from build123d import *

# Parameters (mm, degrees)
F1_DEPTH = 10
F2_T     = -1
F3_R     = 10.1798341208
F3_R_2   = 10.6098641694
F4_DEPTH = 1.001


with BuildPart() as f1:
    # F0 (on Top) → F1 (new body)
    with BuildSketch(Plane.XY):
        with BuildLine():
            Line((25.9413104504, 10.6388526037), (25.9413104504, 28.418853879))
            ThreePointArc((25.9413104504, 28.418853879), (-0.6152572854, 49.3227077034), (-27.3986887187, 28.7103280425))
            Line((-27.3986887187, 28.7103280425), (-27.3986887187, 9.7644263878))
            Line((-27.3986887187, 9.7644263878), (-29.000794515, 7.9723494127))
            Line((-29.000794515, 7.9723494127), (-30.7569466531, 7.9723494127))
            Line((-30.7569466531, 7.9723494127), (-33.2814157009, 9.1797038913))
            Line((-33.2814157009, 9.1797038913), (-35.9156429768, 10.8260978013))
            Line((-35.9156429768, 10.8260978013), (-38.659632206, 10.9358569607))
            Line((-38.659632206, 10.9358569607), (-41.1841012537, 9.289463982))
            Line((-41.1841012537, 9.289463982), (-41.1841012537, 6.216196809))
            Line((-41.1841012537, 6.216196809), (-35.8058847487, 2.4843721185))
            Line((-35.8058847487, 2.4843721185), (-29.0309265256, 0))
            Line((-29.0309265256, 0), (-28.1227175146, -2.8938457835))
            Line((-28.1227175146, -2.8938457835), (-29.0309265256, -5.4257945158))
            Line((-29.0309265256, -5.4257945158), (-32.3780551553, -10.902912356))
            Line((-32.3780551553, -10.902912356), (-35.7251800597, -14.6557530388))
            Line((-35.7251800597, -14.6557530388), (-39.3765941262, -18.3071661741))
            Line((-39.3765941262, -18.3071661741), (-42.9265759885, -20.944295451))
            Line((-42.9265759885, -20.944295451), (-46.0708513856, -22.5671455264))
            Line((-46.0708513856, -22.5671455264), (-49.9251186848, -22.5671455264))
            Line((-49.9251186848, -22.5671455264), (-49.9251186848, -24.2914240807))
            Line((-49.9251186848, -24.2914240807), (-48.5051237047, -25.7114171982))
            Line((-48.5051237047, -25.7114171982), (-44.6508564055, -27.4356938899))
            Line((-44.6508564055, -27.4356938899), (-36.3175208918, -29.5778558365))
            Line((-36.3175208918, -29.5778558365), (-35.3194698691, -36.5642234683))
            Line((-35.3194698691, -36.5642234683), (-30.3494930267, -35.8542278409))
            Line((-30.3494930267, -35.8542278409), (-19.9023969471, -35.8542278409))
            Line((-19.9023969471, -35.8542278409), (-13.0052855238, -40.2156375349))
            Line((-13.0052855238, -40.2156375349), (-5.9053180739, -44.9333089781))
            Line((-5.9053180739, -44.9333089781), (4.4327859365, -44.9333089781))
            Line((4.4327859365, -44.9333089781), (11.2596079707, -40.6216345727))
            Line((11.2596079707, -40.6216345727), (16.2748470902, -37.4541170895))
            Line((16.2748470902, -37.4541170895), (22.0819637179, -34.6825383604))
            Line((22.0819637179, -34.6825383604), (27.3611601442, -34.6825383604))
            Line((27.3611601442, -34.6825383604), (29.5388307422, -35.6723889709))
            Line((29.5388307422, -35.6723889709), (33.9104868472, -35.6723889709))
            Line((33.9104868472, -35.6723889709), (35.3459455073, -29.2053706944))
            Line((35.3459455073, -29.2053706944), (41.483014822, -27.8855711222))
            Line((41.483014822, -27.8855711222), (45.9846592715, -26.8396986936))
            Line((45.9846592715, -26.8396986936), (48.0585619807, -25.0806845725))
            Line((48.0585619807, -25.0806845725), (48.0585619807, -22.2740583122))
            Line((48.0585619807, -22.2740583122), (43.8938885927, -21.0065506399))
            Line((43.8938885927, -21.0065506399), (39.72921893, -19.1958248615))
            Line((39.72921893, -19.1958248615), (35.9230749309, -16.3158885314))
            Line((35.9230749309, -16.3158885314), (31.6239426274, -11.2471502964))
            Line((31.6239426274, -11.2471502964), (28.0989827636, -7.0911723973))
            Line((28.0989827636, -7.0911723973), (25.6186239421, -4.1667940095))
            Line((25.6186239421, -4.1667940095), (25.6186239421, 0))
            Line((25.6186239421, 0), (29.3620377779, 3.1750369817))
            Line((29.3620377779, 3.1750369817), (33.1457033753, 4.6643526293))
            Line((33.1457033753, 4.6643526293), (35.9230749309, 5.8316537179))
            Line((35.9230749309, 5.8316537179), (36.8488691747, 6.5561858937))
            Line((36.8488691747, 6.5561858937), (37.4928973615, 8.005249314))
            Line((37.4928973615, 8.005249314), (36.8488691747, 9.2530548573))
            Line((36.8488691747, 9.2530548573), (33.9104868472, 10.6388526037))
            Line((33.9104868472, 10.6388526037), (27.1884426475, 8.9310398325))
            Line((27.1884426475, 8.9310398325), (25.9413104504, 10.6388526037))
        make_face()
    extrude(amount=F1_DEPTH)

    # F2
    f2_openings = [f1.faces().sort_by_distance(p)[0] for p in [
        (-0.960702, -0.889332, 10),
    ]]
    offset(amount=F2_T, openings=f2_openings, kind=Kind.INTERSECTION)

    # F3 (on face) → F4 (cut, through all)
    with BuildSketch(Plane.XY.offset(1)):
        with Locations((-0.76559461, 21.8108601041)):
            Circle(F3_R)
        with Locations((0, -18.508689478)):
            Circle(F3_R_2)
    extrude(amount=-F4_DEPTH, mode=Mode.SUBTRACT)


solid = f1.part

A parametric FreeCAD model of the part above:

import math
import FreeCAD as App
import Part
import Sketcher
from FreeCAD import Vector
Q = App.Units.Quantity


def faces_at(feature, points):
    """Names of the faces that lie closest to the given points."""
    faces = feature.Shape.Faces
    near = lambda p: min(range(len(faces)), key=lambda i: faces[i].distToShape(Part.Vertex(*p))[0])
    return sorted({f"Face{near(p) + 1}" for p in points})

doc = App.newDocument("Part")
body = doc.addObject("PartDesign::Body", "Body")

sketch1 = body.newObject("Sketcher::SketchObject", "Sketch")
sketch1.AttachmentSupport = (doc.getObject("XY_Plane"), [""])
sketch1.MapMode = "FlatFace"
sketch1.addGeometry(Part.LineSegment(Vector(25.94131, 10.638853, 0), Vector(25.94131, 28.418854, 0)), False)
sketch1.addGeometry(Part.ArcOfCircle(Part.Circle(Vector(-0.765595, 21.81086, 0), Vector(0, 0, 1), 27.512258), math.radians(13.897378), math.radians(165.476448)), False)
sketch1.addGeometry(Part.LineSegment(Vector(-27.398689, 28.710328, 0), Vector(-27.398689, 9.764426, 0)), False)
sketch1.addGeometry(Part.LineSegment(Vector(-27.398689, 9.764426, 0), Vector(-29.000795, 7.972349, 0)), False)
sketch1.addGeometry(Part.LineSegment(Vector(-29.000795, 7.972349, 0), Vector(-30.756947, 7.972349, 0)), False)
sketch1.addGeometry(Part.LineSegment(Vector(-30.756947, 7.972349, 0), Vector(-33.281416, 9.179704, 0)), False)
sketch1.addGeometry(Part.LineSegment(Vector(-33.281416, 9.179704, 0), Vector(-35.915643, 10.826098, 0)), False)
sketch1.addGeometry(Part.LineSegment(Vector(-35.915643, 10.826098, 0), Vector(-38.659632, 10.935857, 0)), False)
sketch1.addGeometry(Part.LineSegment(Vector(-38.659632, 10.935857, 0), Vector(-41.184101, 9.289464, 0)), False)
sketch1.addGeometry(Part.LineSegment(Vector(-41.184101, 9.289464, 0), Vector(-41.184101, 6.216197, 0)), False)
sketch1.addGeometry(Part.LineSegment(Vector(-41.184101, 6.216197, 0), Vector(-35.805885, 2.484372, 0)), False)
sketch1.addGeometry(Part.LineSegment(Vector(-35.805885, 2.484372, 0), Vector(-29.030927, 0, 0)), False)
sketch1.addGeometry(Part.LineSegment(Vector(-29.030927, 0, 0), Vector(-28.122718, -2.893846, 0)), False)
sketch1.addGeometry(Part.LineSegment(Vector(-28.122718, -2.893846, 0), Vector(-29.030927, -5.425795, 0)), False)
sketch1.addGeometry(Part.LineSegment(Vector(-29.030927, -5.425795, 0), Vector(-32.378055, -10.902912, 0)), False)
sketch1.addGeometry(Part.LineSegment(Vector(-32.378055, -10.902912, 0), Vector(-35.72518, -14.655753, 0)), False)
sketch1.addGeometry(Part.LineSegment(Vector(-35.72518, -14.655753, 0), Vector(-39.376594, -18.307166, 0)), False)
sketch1.addGeometry(Part.LineSegment(Vector(-39.376594, -18.307166, 0), Vector(-42.926576, -20.944295, 0)), False)
sketch1.addGeometry(Part.LineSegment(Vector(-42.926576, -20.944295, 0), Vector(-46.070851, -22.567146, 0)), False)
sketch1.addGeometry(Part.LineSegment(Vector(-46.070851, -22.567146, 0), Vector(-49.925119, -22.567146, 0)), False)
sketch1.addGeometry(Part.LineSegment(Vector(-49.925119, -22.567146, 0), Vector(-49.925119, -24.291424, 0)), False)
sketch1.addGeometry(Part.LineSegment(Vector(-49.925119, -24.291424, 0), Vector(-48.505124, -25.711417, 0)), False)
sketch1.addGeometry(Part.LineSegment(Vector(-48.505124, -25.711417, 0), Vector(-44.650856, -27.435694, 0)), False)
sketch1.addGeometry(Part.LineSegment(Vector(-44.650856, -27.435694, 0), Vector(-36.317521, -29.577856, 0)), False)
sketch1.addGeometry(Part.LineSegment(Vector(-36.317521, -29.577856, 0), Vector(-35.31947, -36.564223, 0)), False)
sketch1.addGeometry(Part.LineSegment(Vector(-35.31947, -36.564223, 0), Vector(-30.349493, -35.854228, 0)), False)
sketch1.addGeometry(Part.LineSegment(Vector(-30.349493, -35.854228, 0), Vector(-19.902397, -35.854228, 0)), False)
sketch1.addGeometry(Part.LineSegment(Vector(-19.902397, -35.854228, 0), Vector(-13.005286, -40.215638, 0)), False)
sketch1.addGeometry(Part.LineSegment(Vector(-13.005286, -40.215638, 0), Vector(-5.905318, -44.933309, 0)), False)
sketch1.addGeometry(Part.LineSegment(Vector(-5.905318, -44.933309, 0), Vector(4.432786, -44.933309, 0)), False)
sketch1.addGeometry(Part.LineSegment(Vector(4.432786, -44.933309, 0), Vector(11.259608, -40.621635, 0)), False)
sketch1.addGeometry(Part.LineSegment(Vector(11.259608, -40.621635, 0), Vector(16.274847, -37.454117, 0)), False)
sketch1.addGeometry(Part.LineSegment(Vector(16.274847, -37.454117, 0), Vector(22.081964, -34.682538, 0)), False)
sketch1.addGeometry(Part.LineSegment(Vector(22.081964, -34.682538, 0), Vector(27.36116, -34.682538, 0)), False)
sketch1.addGeometry(Part.LineSegment(Vector(27.36116, -34.682538, 0), Vector(29.538831, -35.672389, 0)), False)
sketch1.addGeometry(Part.LineSegment(Vector(29.538831, -35.672389, 0), Vector(33.910487, -35.672389, 0)), False)
sketch1.addGeometry(Part.LineSegment(Vector(33.910487, -35.672389, 0), Vector(35.345946, -29.205371, 0)), False)
sketch1.addGeometry(Part.LineSegment(Vector(35.345946, -29.205371, 0), Vector(41.483015, -27.885571, 0)), False)
sketch1.addGeometry(Part.LineSegment(Vector(41.483015, -27.885571, 0), Vector(45.984659, -26.839699, 0)), False)
sketch1.addGeometry(Part.LineSegment(Vector(45.984659, -26.839699, 0), Vector(48.058562, -25.080685, 0)), False)
sketch1.addGeometry(Part.LineSegment(Vector(48.058562, -25.080685, 0), Vector(48.058562, -22.274058, 0)), False)
sketch1.addGeometry(Part.LineSegment(Vector(48.058562, -22.274058, 0), Vector(43.893889, -21.006551, 0)), False)
sketch1.addGeometry(Part.LineSegment(Vector(43.893889, -21.006551, 0), Vector(39.729219, -19.195825, 0)), False)
sketch1.addGeometry(Part.LineSegment(Vector(39.729219, -19.195825, 0), Vector(35.923075, -16.315889, 0)), False)
sketch1.addGeometry(Part.LineSegment(Vector(35.923075, -16.315889, 0), Vector(31.623943, -11.24715, 0)), False)
sketch1.addGeometry(Part.LineSegment(Vector(31.623943, -11.24715, 0), Vector(28.098983, -7.091172, 0)), False)
sketch1.addGeometry(Part.LineSegment(Vector(28.098983, -7.091172, 0), Vector(25.618624, -4.166794, 0)), False)
sketch1.addGeometry(Part.LineSegment(Vector(25.618624, -4.166794, 0), Vector(25.618624, 0, 0)), False)
sketch1.addGeometry(Part.LineSegment(Vector(25.618624, 0, 0), Vector(29.362038, 3.175037, 0)), False)
sketch1.addGeometry(Part.LineSegment(Vector(29.362038, 3.175037, 0), Vector(33.145703, 4.664353, 0)), False)
sketch1.addGeometry(Part.LineSegment(Vector(33.145703, 4.664353, 0), Vector(35.923075, 5.831654, 0)), False)
sketch1.addGeometry(Part.LineSegment(Vector(35.923075, 5.831654, 0), Vector(36.848869, 6.556186, 0)), False)
sketch1.addGeometry(Part.LineSegment(Vector(36.848869, 6.556186, 0), Vector(37.492897, 8.005249, 0)), False)
sketch1.addGeometry(Part.LineSegment(Vector(37.492897, 8.005249, 0), Vector(36.848869, 9.253055, 0)), False)
sketch1.addGeometry(Part.LineSegment(Vector(36.848869, 9.253055, 0), Vector(33.910487, 10.638853, 0)), False)
sketch1.addGeometry(Part.LineSegment(Vector(33.910487, 10.638853, 0), Vector(27.188443, 8.93104, 0)), False)
sketch1.addGeometry(Part.LineSegment(Vector(27.188443, 8.93104, 0), Vector(25.94131, 10.638853, 0)), False)
sketch1.addConstraint(Sketcher.Constraint("Coincident", 0, 2, 1, 1))
sketch1.addConstraint(Sketcher.Constraint("Coincident", 1, 2, 2, 1))
sketch1.addConstraint(Sketcher.Constraint("Coincident", 2, 2, 3, 1))
sketch1.addConstraint(Sketcher.Constraint("Coincident", 3, 2, 4, 1))
sketch1.addConstraint(Sketcher.Constraint("Coincident", 4, 2, 5, 1))
sketch1.addConstraint(Sketcher.Constraint("Coincident", 5, 2, 6, 1))
sketch1.addConstraint(Sketcher.Constraint("Coincident", 6, 2, 7, 1))
sketch1.addConstraint(Sketcher.Constraint("Coincident", 7, 2, 8, 1))
sketch1.addConstraint(Sketcher.Constraint("Coincident", 8, 2, 9, 1))
sketch1.addConstraint(Sketcher.Constraint("Coincident", 9, 2, 10, 1))
sketch1.addConstraint(Sketcher.Constraint("Coincident", 10, 2, 11, 1))
sketch1.addConstraint(Sketcher.Constraint("Coincident", 11, 2, 12, 1))
sketch1.addConstraint(Sketcher.Constraint("Coincident", 12, 2, 13, 1))
sketch1.addConstraint(Sketcher.Constraint("Coincident", 13, 2, 14, 1))
sketch1.addConstraint(Sketcher.Constraint("Coincident", 14, 2, 15, 1))
sketch1.addConstraint(Sketcher.Constraint("Coincident", 15, 2, 16, 1))
sketch1.addConstraint(Sketcher.Constraint("Coincident", 16, 2, 17, 1))
sketch1.addConstraint(Sketcher.Constraint("Coincident", 17, 2, 18, 1))
sketch1.addConstraint(Sketcher.Constraint("Coincident", 18, 2, 19, 1))
sketch1.addConstraint(Sketcher.Constraint("Coincident", 19, 2, 20, 1))
sketch1.addConstraint(Sketcher.Constraint("Coincident", 20, 2, 21, 1))
sketch1.addConstraint(Sketcher.Constraint("Coincident", 21, 2, 22, 1))
sketch1.addConstraint(Sketcher.Constraint("Coincident", 22, 2, 23, 1))
sketch1.addConstraint(Sketcher.Constraint("Coincident", 23, 2, 24, 1))
sketch1.addConstraint(Sketcher.Constraint("Coincident", 24, 2, 25, 1))
sketch1.addConstraint(Sketcher.Constraint("Coincident", 25, 2, 26, 1))
sketch1.addConstraint(Sketcher.Constraint("Coincident", 26, 2, 27, 1))
sketch1.addConstraint(Sketcher.Constraint("Coincident", 27, 2, 28, 1))
sketch1.addConstraint(Sketcher.Constraint("Coincident", 28, 2, 29, 1))
sketch1.addConstraint(Sketcher.Constraint("Coincident", 29, 2, 30, 1))
sketch1.addConstraint(Sketcher.Constraint("Coincident", 30, 2, 31, 1))
sketch1.addConstraint(Sketcher.Constraint("Coincident", 31, 2, 32, 1))
sketch1.addConstraint(Sketcher.Constraint("Coincident", 32, 2, 33, 1))
sketch1.addConstraint(Sketcher.Constraint("Coincident", 33, 2, 34, 1))
sketch1.addConstraint(Sketcher.Constraint("Coincident", 34, 2, 35, 1))
sketch1.addConstraint(Sketcher.Constraint("Coincident", 35, 2, 36, 1))
sketch1.addConstraint(Sketcher.Constraint("Coincident", 36, 2, 37, 1))
sketch1.addConstraint(Sketcher.Constraint("Coincident", 37, 2, 38, 1))
sketch1.addConstraint(Sketcher.Constraint("Coincident", 38, 2, 39, 1))
sketch1.addConstraint(Sketcher.Constraint("Coincident", 39, 2, 40, 1))
sketch1.addConstraint(Sketcher.Constraint("Coincident", 40, 2, 41, 1))
sketch1.addConstraint(Sketcher.Constraint("Coincident", 41, 2, 42, 1))
sketch1.addConstraint(Sketcher.Constraint("Coincident", 42, 2, 43, 1))
sketch1.addConstraint(Sketcher.Constraint("Coincident", 43, 2, 44, 1))
sketch1.addConstraint(Sketcher.Constraint("Coincident", 44, 2, 45, 1))
sketch1.addConstraint(Sketcher.Constraint("Coincident", 45, 2, 46, 1))
sketch1.addConstraint(Sketcher.Constraint("Coincident", 46, 2, 47, 1))
sketch1.addConstraint(Sketcher.Constraint("Coincident", 47, 2, 48, 1))
sketch1.addConstraint(Sketcher.Constraint("Coincident", 48, 2, 49, 1))
sketch1.addConstraint(Sketcher.Constraint("Coincident", 49, 2, 50, 1))
sketch1.addConstraint(Sketcher.Constraint("Coincident", 50, 2, 51, 1))
sketch1.addConstraint(Sketcher.Constraint("Coincident", 51, 2, 52, 1))
sketch1.addConstraint(Sketcher.Constraint("Coincident", 52, 2, 53, 1))
sketch1.addConstraint(Sketcher.Constraint("Coincident", 53, 2, 54, 1))
sketch1.addConstraint(Sketcher.Constraint("Coincident", 54, 2, 55, 1))
sketch1.addConstraint(Sketcher.Constraint("Coincident", 55, 2, 56, 1))
sketch1.addConstraint(Sketcher.Constraint("Coincident", 56, 2, 0, 1))
sketch1.addConstraint(Sketcher.Constraint("Vertical", 0))
sketch1.addConstraint(Sketcher.Constraint("Vertical", 2))
sketch1.addConstraint(Sketcher.Constraint("Horizontal", 4))
sketch1.addConstraint(Sketcher.Constraint("Vertical", 9))
sketch1.addConstraint(Sketcher.Constraint("Horizontal", 19))
sketch1.addConstraint(Sketcher.Constraint("Vertical", 20))
sketch1.addConstraint(Sketcher.Constraint("Horizontal", 26))
sketch1.addConstraint(Sketcher.Constraint("Horizontal", 29))
sketch1.addConstraint(Sketcher.Constraint("Horizontal", 33))
sketch1.addConstraint(Sketcher.Constraint("Horizontal", 35))
sketch1.addConstraint(Sketcher.Constraint("Vertical", 40))
sketch1.addConstraint(Sketcher.Constraint("Vertical", 47))
sketch1.addConstraint(Sketcher.Constraint("PointOnObject", 11, 2, -1))
sketch1.addConstraint(Sketcher.Constraint("PointOnObject", 47, 2, -1))
sketch1.addConstraint(Sketcher.Constraint("Perpendicular", 16, 21))
sketch1.addConstraint(Sketcher.Constraint("Perpendicular", 24, 25))
sketch1.addConstraint(Sketcher.Constraint("Parallel", 30, 31))
sketch1.addConstraint(Sketcher.Constraint("Perpendicular", 39, 44))
sketch1.addConstraint(Sketcher.Constraint("Parallel", 44, 45))
sketch1.addConstraint(Sketcher.Constraint("Parallel", 45, 46))
sketch1.addConstraint(Sketcher.Constraint("Perpendicular", 46, 48))
sketch1.addConstraint(Sketcher.Constraint("Perpendicular", 18, 53))
sketch1.addConstraint(Sketcher.Constraint("Horizontal", 54, 2, 56, 2))
sketch1.addConstraint(Sketcher.Constraint("Vertical", 11, 2, 13, 2))
sketch1.addConstraint(Sketcher.Constraint("Vertical", 43, 2, 50, 2))
sketch1.addConstraint(Sketcher.Constraint("Vertical", 51, 2, 53, 2))
sketch1.addConstraint(Sketcher.Constraint("Vertical", 35, 2, 54, 2))
sketch1.addConstraint(Sketcher.Constraint("Angle", 16, Q("-135.000007 deg")))
sketch1.addConstraint(Sketcher.Constraint("DistanceY", 0, 1, 0, 2, Q("17.780001 mm")))
sketch1.addConstraint(Sketcher.Constraint("Radius", 1, Q("27.512258 mm")))
sketch1.addConstraint(Sketcher.Constraint("DistanceX", 1, 2, 0, 2, Q("53.339999 mm")))
sketch1.addConstraint(Sketcher.Constraint("DistanceY", 2, 2, 2, 1, Q("18.945902 mm")))
sketch1.addConstraint(Sketcher.Constraint("Distance", 44, Q("6.646401 mm")))
sketch1.addConstraint(Sketcher.Constraint("Distance", 46, Q("3.834602 mm")))
sketch1.addConstraint(Sketcher.Constraint("Distance", 56, Q("2.114702 mm")))
sketch1.addConstraint(Sketcher.Constraint("DistanceY", 20, 2, 20, 1, Q("1.724279 mm")))
sketch1.addConstraint(Sketcher.Constraint("DistanceX", 8, 2, -1, 1, Q("41.184101 mm")))
sketch1.addConstraint(Sketcher.Constraint("DistanceY", 38, 2, -1, 1, Q("26.839699 mm")))
sketch1.addConstraint(Sketcher.Constraint("DistanceX", 3, 2, 1, 3, Q("28.2352 mm")))
sketch1.addConstraint(Sketcher.Constraint("DistanceY", 9, 2, 6, 2, Q("4.609901 mm")))
sketch1.addConstraint(Sketcher.Constraint("DistanceY", 17, 2, 13, 2, Q("15.518501 mm")))
sketch1.addConstraint(Sketcher.Constraint("DistanceY", 22, 2, 17, 2, Q("6.491398 mm")))
sketch1.addConstraint(Sketcher.Constraint("DistanceX", 16, 2, 25, 2, Q("9.027101 mm")))
sketch1.addConstraint(Sketcher.Constraint("DistanceX", 25, 2, 30, 2, Q("41.609101 mm")))
sketch1.addConstraint(Sketcher.Constraint("DistanceY", 27, 2, 32, 2, Q("5.533099 mm")))
sketch1.addConstraint(Sketcher.Constraint("DistanceX", 31, 2, 36, 2, Q("19.071098 mm")))
sketch1.addConstraint(Sketcher.Constraint("DistanceY", 36, 2, 37, 2, Q("1.3198 mm")))
sketch1.addConstraint(Sketcher.Constraint("DistanceX", 33, 2, 38, 2, Q("18.623499 mm")))
sketch1.addConstraint(Sketcher.Constraint("DistanceY", 41, 2, 44, 2, Q("9.7594 mm")))
sketch1.addConstraint(Sketcher.Constraint("DistanceY", 36, 2, 45, 2, Q("22.114198 mm")))
sketch1.addConstraint(Sketcher.Constraint("DistanceY", 49, 2, 50, 2, Q("1.167301 mm")))
sketch1.addConstraint(Sketcher.Constraint("DistanceY", 50, 2, 53, 2, Q("3.421401 mm")))
sketch1.addConstraint(Sketcher.Constraint("DistanceY", 50, 2, 54, 2, Q("4.807199 mm")))
sketch1.addConstraint(Sketcher.Constraint("Distance", 5, Q("2.79833 mm")))
sketch1.addConstraint(Sketcher.Constraint("Distance", 13, Q("2.689909 mm")))
sketch1.addConstraint(Sketcher.Constraint("Distance", 16, Q("5.163879 mm")))
sketch1.addConstraint(Sketcher.Constraint("Distance", 17, Q("4.42231 mm")))
sketch1.addConstraint(Sketcher.Constraint("Distance", 22, Q("4.222382 mm")))
sketch1.addConstraint(Sketcher.Constraint("Distance", 31, Q("5.931761 mm")))
sketch1.addConstraint(Sketcher.Constraint("Distance", 34, Q("2.392081 mm")))
sketch1.addConstraint(Sketcher.Constraint("Distance", 37, Q("6.277379 mm")))
sketch1.addConstraint(Sketcher.Constraint("Distance", 43, Q("4.77292 mm")))
sketch1.addConstraint(Sketcher.Constraint("Distance", 45, Q("5.449541 mm")))
sketch1.addConstraint(Sketcher.Constraint("DistanceX", 4, 2, 4, 1, Q("1.756152 mm")))
sketch1.addConstraint(Sketcher.Constraint("DistanceX", 19, 2, 19, 1, Q("3.854267 mm")))
sketch1.addConstraint(Sketcher.Constraint("DistanceX", 26, 1, 26, 2, Q("10.447096 mm")))
sketch1.addConstraint(Sketcher.Constraint("DistanceX", 29, 1, 29, 2, Q("10.338104 mm")))
sketch1.addConstraint(Sketcher.Constraint("DistanceX", 33, 1, 33, 2, Q("5.279196 mm")))
sketch1.addConstraint(Sketcher.Constraint("DistanceX", 35, 1, 35, 2, Q("4.371656 mm")))
sketch1.addConstraint(Sketcher.Constraint("DistanceY", 9, 2, 9, 1, Q("3.073267 mm")))
sketch1.addConstraint(Sketcher.Constraint("DistanceY", 40, 1, 40, 2, Q("2.806626 mm")))
sketch1.addConstraint(Sketcher.Constraint("DistanceY", 47, 1, 47, 2, Q("4.166794 mm")))
sketch1.addConstraint(Sketcher.Constraint("DistanceY", -1, 1, 1, 3, Q("21.81086 mm")))
sketch1.addConstraint(Sketcher.Constraint("DistanceX", -1, 1, 0, 2, Q("25.94131 mm")))
sketch1.addConstraint(Sketcher.Constraint("DistanceY", -1, 1, 1, 2, Q("28.710328 mm")))
sketch1.addConstraint(Sketcher.Constraint("DistanceY", -1, 1, 3, 2, Q("7.972349 mm")))
sketch1.addConstraint(Sketcher.Constraint("DistanceX", 15, 2, -1, 1, Q("35.72518 mm")))
sketch1.addConstraint(Sketcher.Constraint("DistanceX", 18, 2, -1, 1, Q("46.070851 mm")))
sketch1.addConstraint(Sketcher.Constraint("DistanceX", 23, 2, -1, 1, Q("36.317521 mm")))
sketch1.addConstraint(Sketcher.Constraint("DistanceX", 24, 2, -1, 1, Q("35.31947 mm")))
sketch1.addConstraint(Sketcher.Constraint("DistanceX", 28, 2, -1, 1, Q("5.905318 mm")))
sketch1.addConstraint(Sketcher.Constraint("DistanceY", 28, 2, -1, 1, Q("44.933309 mm")))
sketch1.addConstraint(Sketcher.Constraint("DistanceY", 32, 2, -1, 1, Q("34.682538 mm")))
sketch1.addConstraint(Sketcher.Constraint("DistanceX", -1, 1, 33, 2, Q("27.36116 mm")))
sketch1.addConstraint(Sketcher.Constraint("DistanceX", -1, 1, 34, 2, Q("29.538831 mm")))
sketch1.addConstraint(Sketcher.Constraint("DistanceY", 36, 2, -1, 1, Q("29.205371 mm")))
sketch1.addConstraint(Sketcher.Constraint("DistanceX", -1, 1, 39, 2, Q("48.058562 mm")))
sketch1.addConstraint(Sketcher.Constraint("DistanceX", -1, 1, 41, 2, Q("43.893889 mm")))
sketch1.addConstraint(Sketcher.Constraint("DistanceX", -1, 1, 42, 2, Q("39.729219 mm")))
sketch1.addConstraint(Sketcher.Constraint("DistanceX", -1, 1, 51, 2, Q("36.848869 mm")))
sketch1.addConstraint(Sketcher.Constraint("DistanceY", -1, 1, 52, 2, Q("8.005249 mm")))
sketch1.addConstraint(Sketcher.Constraint("DistanceY", -1, 1, 55, 2, Q("8.93104 mm")))
sketch1.addConstraint(Sketcher.Constraint("DistanceX", 5, 2, 4, 2, Q("2.524469 mm")))
sketch1.addConstraint(Sketcher.Constraint("DistanceY", 4, 2, 6, 2, Q("2.853748 mm")))
sketch1.addConstraint(Sketcher.Constraint("DistanceX", 6, 2, 3, 2, Q("6.914848 mm")))
sketch1.addConstraint(Sketcher.Constraint("DistanceX", 7, 2, 6, 2, Q("2.743989 mm")))
sketch1.addConstraint(Sketcher.Constraint("DistanceY", 6, 2, 7, 2, Q("0.109759 mm")))
sketch1.addConstraint(Sketcher.Constraint("DistanceX", 10, 2, 5, 2, Q("2.524469 mm")))
sketch1.addConstraint(Sketcher.Constraint("DistanceY", 10, 2, 5, 2, Q("6.695332 mm")))
sketch1.addConstraint(Sketcher.Constraint("DistanceX", 10, 2, 11, 2, Q("6.774958 mm")))
sketch1.addConstraint(Sketcher.Constraint("DistanceX", 11, 2, 12, 2, Q("0.908209 mm")))
sketch1.addConstraint(Sketcher.Constraint("DistanceX", 14, 2, 13, 2, Q("3.347129 mm")))
sketch1.addConstraint(Sketcher.Constraint("DistanceY", 14, 2, 4, 2, Q("18.875262 mm")))
sketch1.addConstraint(Sketcher.Constraint("DistanceY", 15, 2, 14, 2, Q("3.752841 mm")))
sketch1.addConstraint(Sketcher.Constraint("DistanceY", 15, 2, 13, 2, Q("9.229959 mm")))
sketch1.addConstraint(Sketcher.Constraint("DistanceY", 18, 2, 17, 2, Q("1.62285 mm")))
sketch1.addConstraint(Sketcher.Constraint("DistanceY", 21, 2, 19, 2, Q("3.144272 mm")))
sketch1.addConstraint(Sketcher.Constraint("DistanceY", 23, 2, 22, 2, Q("2.142162 mm")))
sketch1.addConstraint(Sketcher.Constraint("DistanceY", 24, 2, 22, 2, Q("9.12853 mm")))
sketch1.addConstraint(Sketcher.Constraint("DistanceX", 26, 2, 27, 2, Q("6.897111 mm")))
sketch1.addConstraint(Sketcher.Constraint("DistanceX", 30, 2, 31, 2, Q("5.015239 mm")))
sketch1.addConstraint(Sketcher.Constraint("DistanceY", 39, 2, 42, 2, Q("5.88486 mm")))
sketch1.addConstraint(Sketcher.Constraint("DistanceY", 46, 2, 48, 2, Q("7.341831 mm")))
sketch1.addConstraint(Sketcher.Constraint("DistanceX", 47, 2, 49, 2, Q("7.527079 mm")))
sketch1.addConstraint(Sketcher.Constraint("DistanceY", 48, 2, 51, 2, Q("3.381149 mm")))
pad1 = body.newObject("PartDesign::Pad", "Pad")
pad1.Profile = sketch1
pad1.Length = 10
doc.recompute()

thickness = body.newObject("PartDesign::Thickness", "Thickness")
thickness.Base = (pad1, faces_at(pad1, [(-0.933, 2.195, 10)]))
thickness.Value = 1
thickness.Reversed = True
thickness.Join = "Intersection"

sketch2 = body.newObject("Sketcher::SketchObject", "Sketch001")
sketch2.AttachmentSupport = (doc.getObject("XY_Plane"), [""])
sketch2.MapMode = "FlatFace"
sketch2.AttachmentOffset = App.Placement(Vector(0, 0, 1), App.Rotation())
sketch2.addGeometry(Part.Circle(Vector(-0.765595, 21.81086, 0), Vector(0, 0, 1), 10.179834), False)
sketch2.addGeometry(Part.Circle(Vector(0, -18.508689, 0), Vector(0, 0, 1), 10.609864), False)
sketch2.addConstraint(Sketcher.Constraint("PointOnObject", 1, 3, -2))
sketch2.addConstraint(Sketcher.Constraint("Diameter", 0, Q("20.359668 mm")))
sketch2.addConstraint(Sketcher.Constraint("Diameter", 1, Q("21.219728 mm")))
sketch2.addConstraint(Sketcher.Constraint("DistanceY", -1, 1, 0, 3, Q("21.81086 mm")))
sketch2.addConstraint(Sketcher.Constraint("DistanceY", 1, 3, -1, 1, Q("18.508689 mm")))
sketch2.addConstraint(Sketcher.Constraint("DistanceX", 0, 3, -1, 1, Q("0.765595 mm")))
pocket1 = body.newObject("PartDesign::Pocket", "Pocket")
pocket1.Profile = sketch2
pocket1.Type = "ThroughAll"

doc.recompute()
